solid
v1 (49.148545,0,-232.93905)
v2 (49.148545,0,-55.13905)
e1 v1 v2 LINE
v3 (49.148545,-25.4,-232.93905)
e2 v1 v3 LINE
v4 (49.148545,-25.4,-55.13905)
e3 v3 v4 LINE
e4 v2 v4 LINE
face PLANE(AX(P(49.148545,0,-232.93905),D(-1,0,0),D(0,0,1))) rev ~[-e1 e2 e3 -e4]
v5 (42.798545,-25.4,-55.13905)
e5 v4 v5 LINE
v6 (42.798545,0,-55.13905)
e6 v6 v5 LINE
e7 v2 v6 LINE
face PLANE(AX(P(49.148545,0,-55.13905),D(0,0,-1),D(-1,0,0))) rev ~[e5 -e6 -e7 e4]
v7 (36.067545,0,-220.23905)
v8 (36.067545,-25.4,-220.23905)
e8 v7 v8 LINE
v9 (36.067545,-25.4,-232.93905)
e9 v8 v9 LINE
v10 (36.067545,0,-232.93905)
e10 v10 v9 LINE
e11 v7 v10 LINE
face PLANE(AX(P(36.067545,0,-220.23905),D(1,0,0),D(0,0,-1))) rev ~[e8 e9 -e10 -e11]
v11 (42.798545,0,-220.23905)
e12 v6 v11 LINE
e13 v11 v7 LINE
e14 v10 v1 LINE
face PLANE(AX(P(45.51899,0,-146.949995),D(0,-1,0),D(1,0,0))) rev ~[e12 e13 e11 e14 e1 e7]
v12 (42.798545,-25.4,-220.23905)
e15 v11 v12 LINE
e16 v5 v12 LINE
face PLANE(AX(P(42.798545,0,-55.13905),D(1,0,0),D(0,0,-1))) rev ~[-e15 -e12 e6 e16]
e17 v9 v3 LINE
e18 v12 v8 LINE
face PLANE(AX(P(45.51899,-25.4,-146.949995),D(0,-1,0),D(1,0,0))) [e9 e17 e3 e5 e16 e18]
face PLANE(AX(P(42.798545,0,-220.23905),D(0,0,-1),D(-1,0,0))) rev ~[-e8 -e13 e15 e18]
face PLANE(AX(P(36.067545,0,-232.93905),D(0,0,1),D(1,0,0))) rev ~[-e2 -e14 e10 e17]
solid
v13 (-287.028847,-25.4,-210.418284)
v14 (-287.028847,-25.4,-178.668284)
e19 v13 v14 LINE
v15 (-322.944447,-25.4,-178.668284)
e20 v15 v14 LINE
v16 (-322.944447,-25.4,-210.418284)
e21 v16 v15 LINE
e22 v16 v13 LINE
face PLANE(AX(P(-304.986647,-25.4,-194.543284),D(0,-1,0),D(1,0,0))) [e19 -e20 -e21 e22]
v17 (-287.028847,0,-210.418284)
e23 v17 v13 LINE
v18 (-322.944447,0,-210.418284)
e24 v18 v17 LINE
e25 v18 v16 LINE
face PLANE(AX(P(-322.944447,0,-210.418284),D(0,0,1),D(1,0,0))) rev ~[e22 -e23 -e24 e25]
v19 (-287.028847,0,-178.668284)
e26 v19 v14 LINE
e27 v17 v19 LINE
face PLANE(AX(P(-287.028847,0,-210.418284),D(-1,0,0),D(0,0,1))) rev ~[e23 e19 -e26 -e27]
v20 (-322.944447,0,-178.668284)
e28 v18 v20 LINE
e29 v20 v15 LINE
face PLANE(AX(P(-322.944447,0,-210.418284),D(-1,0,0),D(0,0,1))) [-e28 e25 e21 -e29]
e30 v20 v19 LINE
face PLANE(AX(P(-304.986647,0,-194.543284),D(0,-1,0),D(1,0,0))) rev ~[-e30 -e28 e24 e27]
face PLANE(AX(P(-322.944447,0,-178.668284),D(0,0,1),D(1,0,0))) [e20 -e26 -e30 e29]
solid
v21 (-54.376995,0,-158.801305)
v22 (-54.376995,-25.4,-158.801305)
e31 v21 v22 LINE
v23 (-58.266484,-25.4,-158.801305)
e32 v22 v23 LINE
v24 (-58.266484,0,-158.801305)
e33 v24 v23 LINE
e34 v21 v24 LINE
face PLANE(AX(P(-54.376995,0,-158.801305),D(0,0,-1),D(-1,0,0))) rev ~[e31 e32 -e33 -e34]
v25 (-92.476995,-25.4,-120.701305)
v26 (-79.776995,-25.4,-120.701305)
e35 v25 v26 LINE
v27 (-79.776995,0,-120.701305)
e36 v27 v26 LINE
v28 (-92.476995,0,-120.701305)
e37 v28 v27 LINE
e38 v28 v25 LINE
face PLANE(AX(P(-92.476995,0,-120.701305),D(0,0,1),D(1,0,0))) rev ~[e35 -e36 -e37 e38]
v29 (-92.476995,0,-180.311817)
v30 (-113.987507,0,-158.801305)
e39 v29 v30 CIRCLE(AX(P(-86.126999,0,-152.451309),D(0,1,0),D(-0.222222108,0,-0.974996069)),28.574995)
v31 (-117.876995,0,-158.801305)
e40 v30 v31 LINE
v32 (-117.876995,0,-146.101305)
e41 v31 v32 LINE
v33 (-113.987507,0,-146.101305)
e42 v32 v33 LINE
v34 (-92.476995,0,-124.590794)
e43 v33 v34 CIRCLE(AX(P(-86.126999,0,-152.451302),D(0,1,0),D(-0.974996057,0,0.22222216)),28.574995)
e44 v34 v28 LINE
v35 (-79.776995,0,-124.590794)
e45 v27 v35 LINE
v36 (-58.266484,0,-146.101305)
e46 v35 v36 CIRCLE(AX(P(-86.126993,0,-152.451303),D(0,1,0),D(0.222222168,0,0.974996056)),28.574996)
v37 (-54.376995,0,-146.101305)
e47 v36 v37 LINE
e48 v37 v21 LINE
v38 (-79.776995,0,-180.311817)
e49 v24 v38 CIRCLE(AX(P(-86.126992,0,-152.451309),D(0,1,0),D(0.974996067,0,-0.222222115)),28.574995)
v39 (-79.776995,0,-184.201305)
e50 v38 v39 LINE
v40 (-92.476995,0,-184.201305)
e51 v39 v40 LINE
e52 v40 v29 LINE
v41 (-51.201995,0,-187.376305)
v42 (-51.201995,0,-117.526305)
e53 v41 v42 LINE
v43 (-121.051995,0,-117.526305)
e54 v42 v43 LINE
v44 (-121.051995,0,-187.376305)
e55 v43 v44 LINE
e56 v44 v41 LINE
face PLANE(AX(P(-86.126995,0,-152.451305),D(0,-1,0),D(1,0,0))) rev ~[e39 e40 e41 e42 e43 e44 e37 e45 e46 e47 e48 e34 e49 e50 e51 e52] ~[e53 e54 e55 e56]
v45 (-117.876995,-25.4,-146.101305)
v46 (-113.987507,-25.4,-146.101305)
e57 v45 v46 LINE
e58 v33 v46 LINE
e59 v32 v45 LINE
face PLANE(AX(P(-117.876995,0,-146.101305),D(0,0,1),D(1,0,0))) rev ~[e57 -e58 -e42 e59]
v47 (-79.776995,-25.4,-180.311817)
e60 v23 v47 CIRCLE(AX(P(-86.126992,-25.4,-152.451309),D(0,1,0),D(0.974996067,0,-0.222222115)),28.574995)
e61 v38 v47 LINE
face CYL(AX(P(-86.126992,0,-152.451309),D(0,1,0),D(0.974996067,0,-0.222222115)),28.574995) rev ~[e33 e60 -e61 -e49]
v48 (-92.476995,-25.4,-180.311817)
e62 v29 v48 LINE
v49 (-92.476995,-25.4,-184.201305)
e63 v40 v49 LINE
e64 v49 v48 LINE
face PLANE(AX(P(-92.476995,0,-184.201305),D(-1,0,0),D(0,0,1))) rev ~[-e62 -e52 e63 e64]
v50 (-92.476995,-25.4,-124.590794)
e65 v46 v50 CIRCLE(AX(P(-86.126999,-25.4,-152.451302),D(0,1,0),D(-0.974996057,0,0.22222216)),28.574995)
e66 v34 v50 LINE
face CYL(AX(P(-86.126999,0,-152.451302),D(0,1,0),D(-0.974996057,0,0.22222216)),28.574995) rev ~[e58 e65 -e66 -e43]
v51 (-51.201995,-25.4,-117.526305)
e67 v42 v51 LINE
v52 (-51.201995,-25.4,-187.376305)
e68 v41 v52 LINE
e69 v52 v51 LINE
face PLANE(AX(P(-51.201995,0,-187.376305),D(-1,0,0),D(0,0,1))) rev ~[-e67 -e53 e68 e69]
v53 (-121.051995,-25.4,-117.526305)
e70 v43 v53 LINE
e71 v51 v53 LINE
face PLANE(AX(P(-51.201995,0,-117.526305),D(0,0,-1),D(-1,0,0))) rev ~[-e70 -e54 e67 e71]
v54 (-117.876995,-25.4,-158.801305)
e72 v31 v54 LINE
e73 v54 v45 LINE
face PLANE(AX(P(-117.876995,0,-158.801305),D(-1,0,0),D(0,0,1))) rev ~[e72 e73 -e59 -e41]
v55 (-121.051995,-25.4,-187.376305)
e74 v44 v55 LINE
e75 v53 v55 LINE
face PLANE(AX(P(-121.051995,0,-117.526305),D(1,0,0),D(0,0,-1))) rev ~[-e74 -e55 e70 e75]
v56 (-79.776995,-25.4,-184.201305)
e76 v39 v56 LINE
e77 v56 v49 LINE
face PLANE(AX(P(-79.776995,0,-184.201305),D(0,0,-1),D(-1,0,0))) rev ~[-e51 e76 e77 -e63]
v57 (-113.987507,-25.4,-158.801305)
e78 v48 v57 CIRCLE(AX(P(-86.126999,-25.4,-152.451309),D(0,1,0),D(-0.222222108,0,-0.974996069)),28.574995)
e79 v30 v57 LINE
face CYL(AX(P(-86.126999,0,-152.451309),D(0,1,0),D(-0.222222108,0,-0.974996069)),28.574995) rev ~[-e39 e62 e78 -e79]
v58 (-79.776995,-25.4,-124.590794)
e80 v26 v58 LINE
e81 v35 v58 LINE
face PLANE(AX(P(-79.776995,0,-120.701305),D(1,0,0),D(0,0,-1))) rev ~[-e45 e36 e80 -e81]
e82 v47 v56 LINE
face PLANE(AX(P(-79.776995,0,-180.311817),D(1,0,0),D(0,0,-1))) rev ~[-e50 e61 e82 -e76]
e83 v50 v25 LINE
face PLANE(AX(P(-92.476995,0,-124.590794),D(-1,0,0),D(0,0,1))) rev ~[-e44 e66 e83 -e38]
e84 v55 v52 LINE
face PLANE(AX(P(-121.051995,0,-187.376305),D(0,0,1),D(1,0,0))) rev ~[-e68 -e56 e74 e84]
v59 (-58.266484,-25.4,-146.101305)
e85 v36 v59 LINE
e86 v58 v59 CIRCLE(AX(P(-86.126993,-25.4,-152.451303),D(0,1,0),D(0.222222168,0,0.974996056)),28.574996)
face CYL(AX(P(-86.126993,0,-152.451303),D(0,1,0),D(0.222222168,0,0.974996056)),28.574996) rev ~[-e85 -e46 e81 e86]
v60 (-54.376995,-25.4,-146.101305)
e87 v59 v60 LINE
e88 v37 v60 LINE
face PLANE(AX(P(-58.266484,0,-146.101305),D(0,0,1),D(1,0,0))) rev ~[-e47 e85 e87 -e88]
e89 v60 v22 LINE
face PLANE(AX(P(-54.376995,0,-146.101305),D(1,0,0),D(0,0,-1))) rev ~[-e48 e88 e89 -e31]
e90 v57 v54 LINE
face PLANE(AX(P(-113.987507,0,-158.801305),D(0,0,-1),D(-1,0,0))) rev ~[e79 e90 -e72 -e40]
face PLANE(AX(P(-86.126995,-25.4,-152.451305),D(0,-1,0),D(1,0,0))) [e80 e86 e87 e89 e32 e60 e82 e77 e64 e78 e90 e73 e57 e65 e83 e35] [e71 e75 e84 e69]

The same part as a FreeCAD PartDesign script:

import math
import FreeCAD as App
import Part
import Sketcher
from FreeCAD import Vector
Q = App.Units.Quantity


def add_polygon(sketch, points):
    """Adds a closed chain of lines whose ends are joined by coincident constraints."""
    first, n = sketch.GeometryCount, len(points)
    for a, b in zip(points, points[1:] + points[:1]):
        sketch.addGeometry(Part.LineSegment(App.Vector(*a, 0), App.Vector(*b, 0)), False)
    for i in range(n):
        sketch.addConstraint(Sketcher.Constraint("Coincident", first + i, 2, first + (i + 1) % n, 1))

doc = App.newDocument("Part")
body = doc.addObject("PartDesign::Body", "Body")
body.AllowCompound = True

# Sketch on XZ plane
sketch1 = body.newObject("Sketcher::SketchObject", "Sketch")
sketch1.AttachmentSupport = (doc.getObject("XZ_Plane"), [""])
sketch1.MapMode = "FlatFace"
add_polygon(sketch1, [(-121.1, -117.5), (-121.1, -187.4), (-51.2, -187.4), (-51.2, -117.5)])  # lines 0-3
sketch1.addGeometry(Part.LineSegment(Vector(-92.5, -184.2, 0), Vector(-92.5, -180.3, 0)), False)  # 4
sketch1.addGeometry(Part.ArcOfCircle(Part.Circle(Vector(-86.1, -152.5, 0), Vector(0, 0, 1), 28.6), math.radians(-167), math.radians(-103)), False)  # 5
sketch1.addGeometry(Part.LineSegment(Vector(-114, -158.8, 0), Vector(-117.9, -158.8, 0)), False)  # 6
sketch1.addGeometry(Part.LineSegment(Vector(-117.9, -158.8, 0), Vector(-117.9, -146.1, 0)), False)  # 7
sketch1.addGeometry(Part.LineSegment(Vector(-117.9, -146.1, 0), Vector(-114, -146.1, 0)), False)  # 8
sketch1.addGeometry(Part.ArcOfCircle(Part.Circle(Vector(-86.1, -152.5, 0), Vector(0, 0, 1), 28.6), math.radians(103), math.radians(167)), False)  # 9
sketch1.addGeometry(Part.LineSegment(Vector(-92.5, -124.6, 0), Vector(-92.5, -120.7, 0)), False)  # 10
sketch1.addGeometry(Part.LineSegment(Vector(-92.5, -120.7, 0), Vector(-79.8, -120.7, 0)), False)  # 11
sketch1.addGeometry(Part.LineSegment(Vector(-79.8, -120.7, 0), Vector(-79.8, -124.6, 0)), False)  # 12
sketch1.addGeometry(Part.ArcOfCircle(Part.Circle(Vector(-86.1, -152.5, 0), Vector(0, 0, 1), 28.6), math.radians(13), math.radians(77)), False)  # 13
sketch1.addGeometry(Part.LineSegment(Vector(-58.3, -146.1, 0), Vector(-54.4, -146.1, 0)), False)  # 14
sketch1.addGeometry(Part.LineSegment(Vector(-54.4, -146.1, 0), Vector(-54.4, -158.8, 0)), False)  # 15
sketch1.addGeometry(Part.LineSegment(Vector(-54.4, -158.8, 0), Vector(-58.3, -158.8, 0)), False)  # 16
sketch1.addGeometry(Part.ArcOfCircle(Part.Circle(Vector(-86.1, -152.5, 0), Vector(0, 0, 1), 28.6), math.radians(-77), math.radians(-13)), False)  # 17
sketch1.addGeometry(Part.LineSegment(Vector(-79.8, -180.3, 0), Vector(-79.8, -184.2, 0)), False)  # 18
sketch1.addGeometry(Part.LineSegment(Vector(-79.8, -184.2, 0), Vector(-92.5, -184.2, 0)), False)  # 19
add_polygon(sketch1, [(36.1, -220.2), (36.1, -232.9), (49.1, -232.9), (49.1, -55.1), (42.8, -55.1), (42.8, -220.2)])  # lines 20-25
add_polygon(sketch1, [(-322.9, -178.7), (-322.9, -210.4), (-287, -210.4), (-287, -178.7)])  # lines 26-29
sketch1.addConstraint([
    Sketcher.Constraint("Coincident", 4, 2, 5, 2),
    Sketcher.Constraint("Coincident", 5, 1, 6, 1),
    Sketcher.Constraint("Coincident", 6, 2, 7, 1),
    Sketcher.Constraint("Coincident", 7, 2, 8, 1),
    Sketcher.Constraint("Coincident", 8, 2, 9, 2),
    Sketcher.Constraint("Coincident", 9, 1, 10, 1),
    Sketcher.Constraint("Coincident", 10, 2, 11, 1),
    Sketcher.Constraint("Coincident", 11, 2, 12, 1),
    Sketcher.Constraint("Coincident", 12, 2, 13, 2),
    Sketcher.Constraint("Coincident", 13, 1, 14, 1),
    Sketcher.Constraint("Coincident", 14, 2, 15, 1),
    Sketcher.Constraint("Coincident", 15, 2, 16, 1),
    Sketcher.Constraint("Coincident", 16, 2, 17, 2),
    Sketcher.Constraint("Coincident", 17, 1, 18, 1),
    Sketcher.Constraint("Coincident", 18, 2, 19, 1),
    Sketcher.Constraint("Coincident", 19, 2, 4, 1),
    Sketcher.Constraint("Vertical", 0),
    Sketcher.Constraint("Horizontal", 1),
    Sketcher.Constraint("Vertical", 2),
    Sketcher.Constraint("Horizontal", 3),
    Sketcher.Constraint("Vertical", 4),
    Sketcher.Constraint("Horizontal", 6),
    Sketcher.Constraint("Vertical", 7),
    Sketcher.Constraint("Horizontal", 8),
    Sketcher.Constraint("Vertical", 10),
    Sketcher.Constraint("Horizontal", 11),
    Sketcher.Constraint("Vertical", 12),
    Sketcher.Constraint("Horizontal", 14),
    Sketcher.Constraint("Vertical", 15),
    Sketcher.Constraint("Horizontal", 16),
    Sketcher.Constraint("Vertical", 18),
    Sketcher.Constraint("Horizontal", 19),
    Sketcher.Constraint("Vertical", 20),
    Sketcher.Constraint("Horizontal", 21),
    Sketcher.Constraint("Vertical", 22),
    Sketcher.Constraint("Horizontal", 23),
    Sketcher.Constraint("Vertical", 24),
    Sketcher.Constraint("Horizontal", 25),
    Sketcher.Constraint("Vertical", 26),
    Sketcher.Constraint("Horizontal", 27),
    Sketcher.Constraint("Vertical", 28),
    Sketcher.Constraint("Horizontal", 29),
    Sketcher.Constraint("Coincident", 9, 3, 5, 3),
    Sketcher.Constraint("Coincident", 13, 3, 5, 3),
    Sketcher.Constraint("Coincident", 17, 3, 5, 3),
    Sketcher.Constraint("Equal", 5, 9),
    Sketcher.Constraint("Equal", 9, 13),
    Sketcher.Constraint("Equal", 13, 17),
    Sketcher.Constraint("Horizontal", 9, 1, 12, 2),
    Sketcher.Constraint("Horizontal", 8, 2, 13, 1),
    Sketcher.Constraint("Horizontal", 6, 2, 15, 2),
    Sketcher.Constraint("Horizontal", 4, 2, 17, 1),
    Sketcher.Constraint("Vertical", 5, 1, 8, 2),
    Sketcher.Constraint("Vertical", 4, 2, 9, 1),
    Sketcher.Constraint("Equal", 8, 14),
    Sketcher.Constraint("Equal", 3, 0),
    Sketcher.Constraint("Equal", 16, 4),
    Sketcher.Constraint("Equal", 19, 7),
    Sketcher.Constraint("Equal", 4, 10),
    Sketcher.Constraint("Equal", 15, 20),
    Sketcher.Constraint("DistanceY", 22, 1, 22, 2, Q("7 in")),
    Sketcher.Constraint("DistanceX", 11, 1, 11, 2, Q("0.5 in")),
    Sketcher.Constraint("Radius", 9, Q("1.1249998 in")),
    Sketcher.Constraint("DistanceX", 1, 1, 1, 2, Q("2.75 in")),
    Sketcher.Constraint("DistanceX", 23, 2, 23, 1, Q("0.25 in")),
    Sketcher.Constraint("DistanceY", 26, 2, 26, 1, Q("1.25 in")),
    Sketcher.Constraint("DistanceX", 21, 1, 21, 2, Q("0.515 in")),
    Sketcher.Constraint("DistanceX", 27, 1, 27, 2, Q("1.414 in")),
    Sketcher.Constraint("DistanceX", 6, 2, 5, 3, Q("1.2499998 in")),
    Sketcher.Constraint("DistanceX", 0, 2, 5, 3, Q("1.3749998 in")),
    Sketcher.Constraint("DistanceY", 0, 2, 5, 3, Q("1.3749998 in")),
    Sketcher.Constraint("DistanceX", 5, 3, -1, 1, Q("86.126999 mm")),
    Sketcher.Constraint("DistanceY", 5, 3, -1, 1, Q("152.451309 mm")),
    Sketcher.Constraint("DistanceY", 20, 2, -1, 1, Q("232.93905 mm")),
    Sketcher.Constraint("DistanceX", 1, 2, 20, 2, Q("87.26954 mm")),
    Sketcher.Constraint("DistanceY", 26, 2, 0, 2, Q("23.041979 mm")),
    Sketcher.Constraint("DistanceX", 26, 2, 5, 1, Q("208.95694 mm")),
])
pad1 = body.newObject("PartDesign::Pad", "Pad")
pad1.Profile = sketch1
pad1.Length = Q("1 in")

doc.recompute()
